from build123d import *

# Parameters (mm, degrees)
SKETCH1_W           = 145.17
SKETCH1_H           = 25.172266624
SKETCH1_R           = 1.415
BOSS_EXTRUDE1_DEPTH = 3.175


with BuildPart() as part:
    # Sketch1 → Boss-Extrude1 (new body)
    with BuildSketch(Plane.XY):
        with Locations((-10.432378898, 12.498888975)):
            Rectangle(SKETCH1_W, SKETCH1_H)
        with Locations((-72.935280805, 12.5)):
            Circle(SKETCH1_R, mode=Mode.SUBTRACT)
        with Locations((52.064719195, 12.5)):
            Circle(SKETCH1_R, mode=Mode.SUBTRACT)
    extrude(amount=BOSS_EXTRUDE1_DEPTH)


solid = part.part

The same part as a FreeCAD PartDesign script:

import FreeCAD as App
import Part
import Sketcher
from FreeCAD import Vector
Q = App.Units.Quantity


def add_polygon(sketch, points):
    """Adds a closed chain of lines whose ends are joined by coincident constraints."""
    first, n = sketch.GeometryCount, len(points)
    for a, b in zip(points, points[1:] + points[:1]):
        sketch.addGeometry(Part.LineSegment(App.Vector(*a, 0), App.Vector(*b, 0)), False)
    for i in range(n):
        sketch.addConstraint(Sketcher.Constraint("Coincident", first + i, 2, first + (i + 1) % n, 1))

doc = App.newDocument("Part")
body = doc.addObject("PartDesign::Body", "Body")

# Sketch on XY plane
sketch1 = body.newObject("Sketcher::SketchObject", "Sketch")
sketch1.AttachmentSupport = (doc.getObject("XY_Plane"), [""])
sketch1.MapMode = "FlatFace"
add_polygon(sketch1, [(-83, 25.1), (-83, -0.1), (62.2, -0.1), (62.2, 25.1)])  # lines 0-3
sketch1.addGeometry(Part.Circle(Vector(-72.9, 12.5, 0), Vector(0, 0, 1), 1.4), False)  # 4
sketch1.addGeometry(Part.Circle(Vector(52.1, 12.5, 0), Vector(0, 0, 1), 1.4), False)  # 5
sketch1.addConstraint([
    Sketcher.Constraint("Vertical", 0),
    Sketcher.Constraint("Horizontal", 1),
    Sketcher.Constraint("Vertical", 2),
    Sketcher.Constraint("Horizontal", 3),
    Sketcher.Constraint("Equal", 4, 5),
    Sketcher.Constraint("Horizontal", 4, 3, 5, 3),
    Sketcher.Constraint("Diameter", 4, Q("2.83 mm")),
    Sketcher.Constraint("DistanceX", 1, 1, 1, 2, Q("145.17 mm")),
    Sketcher.Constraint("DistanceY", -1, 1, 4, 3, Q("12.5 mm")),
    Sketcher.Constraint("DistanceX", 4, 3, 5, 3, Q("125 mm")),
    Sketcher.Constraint("DistanceX", 0, 2, 4, 3, Q("10.082098 mm")),
    Sketcher.Constraint("DistanceY", 0, 2, 0, 1, Q("25.172267 mm")),
    Sketcher.Constraint("DistanceX", 4, 3, -1, 1, Q("72.935281 mm")),
    Sketcher.Constraint("DistanceY", 0, 2, -1, 1, Q("0.087244 mm")),
])
pad1 = body.newObject("PartDesign::Pad", "Pad")
pad1.Profile = sketch1
pad1.Length = Q("0.125 in")

doc.recompute()
